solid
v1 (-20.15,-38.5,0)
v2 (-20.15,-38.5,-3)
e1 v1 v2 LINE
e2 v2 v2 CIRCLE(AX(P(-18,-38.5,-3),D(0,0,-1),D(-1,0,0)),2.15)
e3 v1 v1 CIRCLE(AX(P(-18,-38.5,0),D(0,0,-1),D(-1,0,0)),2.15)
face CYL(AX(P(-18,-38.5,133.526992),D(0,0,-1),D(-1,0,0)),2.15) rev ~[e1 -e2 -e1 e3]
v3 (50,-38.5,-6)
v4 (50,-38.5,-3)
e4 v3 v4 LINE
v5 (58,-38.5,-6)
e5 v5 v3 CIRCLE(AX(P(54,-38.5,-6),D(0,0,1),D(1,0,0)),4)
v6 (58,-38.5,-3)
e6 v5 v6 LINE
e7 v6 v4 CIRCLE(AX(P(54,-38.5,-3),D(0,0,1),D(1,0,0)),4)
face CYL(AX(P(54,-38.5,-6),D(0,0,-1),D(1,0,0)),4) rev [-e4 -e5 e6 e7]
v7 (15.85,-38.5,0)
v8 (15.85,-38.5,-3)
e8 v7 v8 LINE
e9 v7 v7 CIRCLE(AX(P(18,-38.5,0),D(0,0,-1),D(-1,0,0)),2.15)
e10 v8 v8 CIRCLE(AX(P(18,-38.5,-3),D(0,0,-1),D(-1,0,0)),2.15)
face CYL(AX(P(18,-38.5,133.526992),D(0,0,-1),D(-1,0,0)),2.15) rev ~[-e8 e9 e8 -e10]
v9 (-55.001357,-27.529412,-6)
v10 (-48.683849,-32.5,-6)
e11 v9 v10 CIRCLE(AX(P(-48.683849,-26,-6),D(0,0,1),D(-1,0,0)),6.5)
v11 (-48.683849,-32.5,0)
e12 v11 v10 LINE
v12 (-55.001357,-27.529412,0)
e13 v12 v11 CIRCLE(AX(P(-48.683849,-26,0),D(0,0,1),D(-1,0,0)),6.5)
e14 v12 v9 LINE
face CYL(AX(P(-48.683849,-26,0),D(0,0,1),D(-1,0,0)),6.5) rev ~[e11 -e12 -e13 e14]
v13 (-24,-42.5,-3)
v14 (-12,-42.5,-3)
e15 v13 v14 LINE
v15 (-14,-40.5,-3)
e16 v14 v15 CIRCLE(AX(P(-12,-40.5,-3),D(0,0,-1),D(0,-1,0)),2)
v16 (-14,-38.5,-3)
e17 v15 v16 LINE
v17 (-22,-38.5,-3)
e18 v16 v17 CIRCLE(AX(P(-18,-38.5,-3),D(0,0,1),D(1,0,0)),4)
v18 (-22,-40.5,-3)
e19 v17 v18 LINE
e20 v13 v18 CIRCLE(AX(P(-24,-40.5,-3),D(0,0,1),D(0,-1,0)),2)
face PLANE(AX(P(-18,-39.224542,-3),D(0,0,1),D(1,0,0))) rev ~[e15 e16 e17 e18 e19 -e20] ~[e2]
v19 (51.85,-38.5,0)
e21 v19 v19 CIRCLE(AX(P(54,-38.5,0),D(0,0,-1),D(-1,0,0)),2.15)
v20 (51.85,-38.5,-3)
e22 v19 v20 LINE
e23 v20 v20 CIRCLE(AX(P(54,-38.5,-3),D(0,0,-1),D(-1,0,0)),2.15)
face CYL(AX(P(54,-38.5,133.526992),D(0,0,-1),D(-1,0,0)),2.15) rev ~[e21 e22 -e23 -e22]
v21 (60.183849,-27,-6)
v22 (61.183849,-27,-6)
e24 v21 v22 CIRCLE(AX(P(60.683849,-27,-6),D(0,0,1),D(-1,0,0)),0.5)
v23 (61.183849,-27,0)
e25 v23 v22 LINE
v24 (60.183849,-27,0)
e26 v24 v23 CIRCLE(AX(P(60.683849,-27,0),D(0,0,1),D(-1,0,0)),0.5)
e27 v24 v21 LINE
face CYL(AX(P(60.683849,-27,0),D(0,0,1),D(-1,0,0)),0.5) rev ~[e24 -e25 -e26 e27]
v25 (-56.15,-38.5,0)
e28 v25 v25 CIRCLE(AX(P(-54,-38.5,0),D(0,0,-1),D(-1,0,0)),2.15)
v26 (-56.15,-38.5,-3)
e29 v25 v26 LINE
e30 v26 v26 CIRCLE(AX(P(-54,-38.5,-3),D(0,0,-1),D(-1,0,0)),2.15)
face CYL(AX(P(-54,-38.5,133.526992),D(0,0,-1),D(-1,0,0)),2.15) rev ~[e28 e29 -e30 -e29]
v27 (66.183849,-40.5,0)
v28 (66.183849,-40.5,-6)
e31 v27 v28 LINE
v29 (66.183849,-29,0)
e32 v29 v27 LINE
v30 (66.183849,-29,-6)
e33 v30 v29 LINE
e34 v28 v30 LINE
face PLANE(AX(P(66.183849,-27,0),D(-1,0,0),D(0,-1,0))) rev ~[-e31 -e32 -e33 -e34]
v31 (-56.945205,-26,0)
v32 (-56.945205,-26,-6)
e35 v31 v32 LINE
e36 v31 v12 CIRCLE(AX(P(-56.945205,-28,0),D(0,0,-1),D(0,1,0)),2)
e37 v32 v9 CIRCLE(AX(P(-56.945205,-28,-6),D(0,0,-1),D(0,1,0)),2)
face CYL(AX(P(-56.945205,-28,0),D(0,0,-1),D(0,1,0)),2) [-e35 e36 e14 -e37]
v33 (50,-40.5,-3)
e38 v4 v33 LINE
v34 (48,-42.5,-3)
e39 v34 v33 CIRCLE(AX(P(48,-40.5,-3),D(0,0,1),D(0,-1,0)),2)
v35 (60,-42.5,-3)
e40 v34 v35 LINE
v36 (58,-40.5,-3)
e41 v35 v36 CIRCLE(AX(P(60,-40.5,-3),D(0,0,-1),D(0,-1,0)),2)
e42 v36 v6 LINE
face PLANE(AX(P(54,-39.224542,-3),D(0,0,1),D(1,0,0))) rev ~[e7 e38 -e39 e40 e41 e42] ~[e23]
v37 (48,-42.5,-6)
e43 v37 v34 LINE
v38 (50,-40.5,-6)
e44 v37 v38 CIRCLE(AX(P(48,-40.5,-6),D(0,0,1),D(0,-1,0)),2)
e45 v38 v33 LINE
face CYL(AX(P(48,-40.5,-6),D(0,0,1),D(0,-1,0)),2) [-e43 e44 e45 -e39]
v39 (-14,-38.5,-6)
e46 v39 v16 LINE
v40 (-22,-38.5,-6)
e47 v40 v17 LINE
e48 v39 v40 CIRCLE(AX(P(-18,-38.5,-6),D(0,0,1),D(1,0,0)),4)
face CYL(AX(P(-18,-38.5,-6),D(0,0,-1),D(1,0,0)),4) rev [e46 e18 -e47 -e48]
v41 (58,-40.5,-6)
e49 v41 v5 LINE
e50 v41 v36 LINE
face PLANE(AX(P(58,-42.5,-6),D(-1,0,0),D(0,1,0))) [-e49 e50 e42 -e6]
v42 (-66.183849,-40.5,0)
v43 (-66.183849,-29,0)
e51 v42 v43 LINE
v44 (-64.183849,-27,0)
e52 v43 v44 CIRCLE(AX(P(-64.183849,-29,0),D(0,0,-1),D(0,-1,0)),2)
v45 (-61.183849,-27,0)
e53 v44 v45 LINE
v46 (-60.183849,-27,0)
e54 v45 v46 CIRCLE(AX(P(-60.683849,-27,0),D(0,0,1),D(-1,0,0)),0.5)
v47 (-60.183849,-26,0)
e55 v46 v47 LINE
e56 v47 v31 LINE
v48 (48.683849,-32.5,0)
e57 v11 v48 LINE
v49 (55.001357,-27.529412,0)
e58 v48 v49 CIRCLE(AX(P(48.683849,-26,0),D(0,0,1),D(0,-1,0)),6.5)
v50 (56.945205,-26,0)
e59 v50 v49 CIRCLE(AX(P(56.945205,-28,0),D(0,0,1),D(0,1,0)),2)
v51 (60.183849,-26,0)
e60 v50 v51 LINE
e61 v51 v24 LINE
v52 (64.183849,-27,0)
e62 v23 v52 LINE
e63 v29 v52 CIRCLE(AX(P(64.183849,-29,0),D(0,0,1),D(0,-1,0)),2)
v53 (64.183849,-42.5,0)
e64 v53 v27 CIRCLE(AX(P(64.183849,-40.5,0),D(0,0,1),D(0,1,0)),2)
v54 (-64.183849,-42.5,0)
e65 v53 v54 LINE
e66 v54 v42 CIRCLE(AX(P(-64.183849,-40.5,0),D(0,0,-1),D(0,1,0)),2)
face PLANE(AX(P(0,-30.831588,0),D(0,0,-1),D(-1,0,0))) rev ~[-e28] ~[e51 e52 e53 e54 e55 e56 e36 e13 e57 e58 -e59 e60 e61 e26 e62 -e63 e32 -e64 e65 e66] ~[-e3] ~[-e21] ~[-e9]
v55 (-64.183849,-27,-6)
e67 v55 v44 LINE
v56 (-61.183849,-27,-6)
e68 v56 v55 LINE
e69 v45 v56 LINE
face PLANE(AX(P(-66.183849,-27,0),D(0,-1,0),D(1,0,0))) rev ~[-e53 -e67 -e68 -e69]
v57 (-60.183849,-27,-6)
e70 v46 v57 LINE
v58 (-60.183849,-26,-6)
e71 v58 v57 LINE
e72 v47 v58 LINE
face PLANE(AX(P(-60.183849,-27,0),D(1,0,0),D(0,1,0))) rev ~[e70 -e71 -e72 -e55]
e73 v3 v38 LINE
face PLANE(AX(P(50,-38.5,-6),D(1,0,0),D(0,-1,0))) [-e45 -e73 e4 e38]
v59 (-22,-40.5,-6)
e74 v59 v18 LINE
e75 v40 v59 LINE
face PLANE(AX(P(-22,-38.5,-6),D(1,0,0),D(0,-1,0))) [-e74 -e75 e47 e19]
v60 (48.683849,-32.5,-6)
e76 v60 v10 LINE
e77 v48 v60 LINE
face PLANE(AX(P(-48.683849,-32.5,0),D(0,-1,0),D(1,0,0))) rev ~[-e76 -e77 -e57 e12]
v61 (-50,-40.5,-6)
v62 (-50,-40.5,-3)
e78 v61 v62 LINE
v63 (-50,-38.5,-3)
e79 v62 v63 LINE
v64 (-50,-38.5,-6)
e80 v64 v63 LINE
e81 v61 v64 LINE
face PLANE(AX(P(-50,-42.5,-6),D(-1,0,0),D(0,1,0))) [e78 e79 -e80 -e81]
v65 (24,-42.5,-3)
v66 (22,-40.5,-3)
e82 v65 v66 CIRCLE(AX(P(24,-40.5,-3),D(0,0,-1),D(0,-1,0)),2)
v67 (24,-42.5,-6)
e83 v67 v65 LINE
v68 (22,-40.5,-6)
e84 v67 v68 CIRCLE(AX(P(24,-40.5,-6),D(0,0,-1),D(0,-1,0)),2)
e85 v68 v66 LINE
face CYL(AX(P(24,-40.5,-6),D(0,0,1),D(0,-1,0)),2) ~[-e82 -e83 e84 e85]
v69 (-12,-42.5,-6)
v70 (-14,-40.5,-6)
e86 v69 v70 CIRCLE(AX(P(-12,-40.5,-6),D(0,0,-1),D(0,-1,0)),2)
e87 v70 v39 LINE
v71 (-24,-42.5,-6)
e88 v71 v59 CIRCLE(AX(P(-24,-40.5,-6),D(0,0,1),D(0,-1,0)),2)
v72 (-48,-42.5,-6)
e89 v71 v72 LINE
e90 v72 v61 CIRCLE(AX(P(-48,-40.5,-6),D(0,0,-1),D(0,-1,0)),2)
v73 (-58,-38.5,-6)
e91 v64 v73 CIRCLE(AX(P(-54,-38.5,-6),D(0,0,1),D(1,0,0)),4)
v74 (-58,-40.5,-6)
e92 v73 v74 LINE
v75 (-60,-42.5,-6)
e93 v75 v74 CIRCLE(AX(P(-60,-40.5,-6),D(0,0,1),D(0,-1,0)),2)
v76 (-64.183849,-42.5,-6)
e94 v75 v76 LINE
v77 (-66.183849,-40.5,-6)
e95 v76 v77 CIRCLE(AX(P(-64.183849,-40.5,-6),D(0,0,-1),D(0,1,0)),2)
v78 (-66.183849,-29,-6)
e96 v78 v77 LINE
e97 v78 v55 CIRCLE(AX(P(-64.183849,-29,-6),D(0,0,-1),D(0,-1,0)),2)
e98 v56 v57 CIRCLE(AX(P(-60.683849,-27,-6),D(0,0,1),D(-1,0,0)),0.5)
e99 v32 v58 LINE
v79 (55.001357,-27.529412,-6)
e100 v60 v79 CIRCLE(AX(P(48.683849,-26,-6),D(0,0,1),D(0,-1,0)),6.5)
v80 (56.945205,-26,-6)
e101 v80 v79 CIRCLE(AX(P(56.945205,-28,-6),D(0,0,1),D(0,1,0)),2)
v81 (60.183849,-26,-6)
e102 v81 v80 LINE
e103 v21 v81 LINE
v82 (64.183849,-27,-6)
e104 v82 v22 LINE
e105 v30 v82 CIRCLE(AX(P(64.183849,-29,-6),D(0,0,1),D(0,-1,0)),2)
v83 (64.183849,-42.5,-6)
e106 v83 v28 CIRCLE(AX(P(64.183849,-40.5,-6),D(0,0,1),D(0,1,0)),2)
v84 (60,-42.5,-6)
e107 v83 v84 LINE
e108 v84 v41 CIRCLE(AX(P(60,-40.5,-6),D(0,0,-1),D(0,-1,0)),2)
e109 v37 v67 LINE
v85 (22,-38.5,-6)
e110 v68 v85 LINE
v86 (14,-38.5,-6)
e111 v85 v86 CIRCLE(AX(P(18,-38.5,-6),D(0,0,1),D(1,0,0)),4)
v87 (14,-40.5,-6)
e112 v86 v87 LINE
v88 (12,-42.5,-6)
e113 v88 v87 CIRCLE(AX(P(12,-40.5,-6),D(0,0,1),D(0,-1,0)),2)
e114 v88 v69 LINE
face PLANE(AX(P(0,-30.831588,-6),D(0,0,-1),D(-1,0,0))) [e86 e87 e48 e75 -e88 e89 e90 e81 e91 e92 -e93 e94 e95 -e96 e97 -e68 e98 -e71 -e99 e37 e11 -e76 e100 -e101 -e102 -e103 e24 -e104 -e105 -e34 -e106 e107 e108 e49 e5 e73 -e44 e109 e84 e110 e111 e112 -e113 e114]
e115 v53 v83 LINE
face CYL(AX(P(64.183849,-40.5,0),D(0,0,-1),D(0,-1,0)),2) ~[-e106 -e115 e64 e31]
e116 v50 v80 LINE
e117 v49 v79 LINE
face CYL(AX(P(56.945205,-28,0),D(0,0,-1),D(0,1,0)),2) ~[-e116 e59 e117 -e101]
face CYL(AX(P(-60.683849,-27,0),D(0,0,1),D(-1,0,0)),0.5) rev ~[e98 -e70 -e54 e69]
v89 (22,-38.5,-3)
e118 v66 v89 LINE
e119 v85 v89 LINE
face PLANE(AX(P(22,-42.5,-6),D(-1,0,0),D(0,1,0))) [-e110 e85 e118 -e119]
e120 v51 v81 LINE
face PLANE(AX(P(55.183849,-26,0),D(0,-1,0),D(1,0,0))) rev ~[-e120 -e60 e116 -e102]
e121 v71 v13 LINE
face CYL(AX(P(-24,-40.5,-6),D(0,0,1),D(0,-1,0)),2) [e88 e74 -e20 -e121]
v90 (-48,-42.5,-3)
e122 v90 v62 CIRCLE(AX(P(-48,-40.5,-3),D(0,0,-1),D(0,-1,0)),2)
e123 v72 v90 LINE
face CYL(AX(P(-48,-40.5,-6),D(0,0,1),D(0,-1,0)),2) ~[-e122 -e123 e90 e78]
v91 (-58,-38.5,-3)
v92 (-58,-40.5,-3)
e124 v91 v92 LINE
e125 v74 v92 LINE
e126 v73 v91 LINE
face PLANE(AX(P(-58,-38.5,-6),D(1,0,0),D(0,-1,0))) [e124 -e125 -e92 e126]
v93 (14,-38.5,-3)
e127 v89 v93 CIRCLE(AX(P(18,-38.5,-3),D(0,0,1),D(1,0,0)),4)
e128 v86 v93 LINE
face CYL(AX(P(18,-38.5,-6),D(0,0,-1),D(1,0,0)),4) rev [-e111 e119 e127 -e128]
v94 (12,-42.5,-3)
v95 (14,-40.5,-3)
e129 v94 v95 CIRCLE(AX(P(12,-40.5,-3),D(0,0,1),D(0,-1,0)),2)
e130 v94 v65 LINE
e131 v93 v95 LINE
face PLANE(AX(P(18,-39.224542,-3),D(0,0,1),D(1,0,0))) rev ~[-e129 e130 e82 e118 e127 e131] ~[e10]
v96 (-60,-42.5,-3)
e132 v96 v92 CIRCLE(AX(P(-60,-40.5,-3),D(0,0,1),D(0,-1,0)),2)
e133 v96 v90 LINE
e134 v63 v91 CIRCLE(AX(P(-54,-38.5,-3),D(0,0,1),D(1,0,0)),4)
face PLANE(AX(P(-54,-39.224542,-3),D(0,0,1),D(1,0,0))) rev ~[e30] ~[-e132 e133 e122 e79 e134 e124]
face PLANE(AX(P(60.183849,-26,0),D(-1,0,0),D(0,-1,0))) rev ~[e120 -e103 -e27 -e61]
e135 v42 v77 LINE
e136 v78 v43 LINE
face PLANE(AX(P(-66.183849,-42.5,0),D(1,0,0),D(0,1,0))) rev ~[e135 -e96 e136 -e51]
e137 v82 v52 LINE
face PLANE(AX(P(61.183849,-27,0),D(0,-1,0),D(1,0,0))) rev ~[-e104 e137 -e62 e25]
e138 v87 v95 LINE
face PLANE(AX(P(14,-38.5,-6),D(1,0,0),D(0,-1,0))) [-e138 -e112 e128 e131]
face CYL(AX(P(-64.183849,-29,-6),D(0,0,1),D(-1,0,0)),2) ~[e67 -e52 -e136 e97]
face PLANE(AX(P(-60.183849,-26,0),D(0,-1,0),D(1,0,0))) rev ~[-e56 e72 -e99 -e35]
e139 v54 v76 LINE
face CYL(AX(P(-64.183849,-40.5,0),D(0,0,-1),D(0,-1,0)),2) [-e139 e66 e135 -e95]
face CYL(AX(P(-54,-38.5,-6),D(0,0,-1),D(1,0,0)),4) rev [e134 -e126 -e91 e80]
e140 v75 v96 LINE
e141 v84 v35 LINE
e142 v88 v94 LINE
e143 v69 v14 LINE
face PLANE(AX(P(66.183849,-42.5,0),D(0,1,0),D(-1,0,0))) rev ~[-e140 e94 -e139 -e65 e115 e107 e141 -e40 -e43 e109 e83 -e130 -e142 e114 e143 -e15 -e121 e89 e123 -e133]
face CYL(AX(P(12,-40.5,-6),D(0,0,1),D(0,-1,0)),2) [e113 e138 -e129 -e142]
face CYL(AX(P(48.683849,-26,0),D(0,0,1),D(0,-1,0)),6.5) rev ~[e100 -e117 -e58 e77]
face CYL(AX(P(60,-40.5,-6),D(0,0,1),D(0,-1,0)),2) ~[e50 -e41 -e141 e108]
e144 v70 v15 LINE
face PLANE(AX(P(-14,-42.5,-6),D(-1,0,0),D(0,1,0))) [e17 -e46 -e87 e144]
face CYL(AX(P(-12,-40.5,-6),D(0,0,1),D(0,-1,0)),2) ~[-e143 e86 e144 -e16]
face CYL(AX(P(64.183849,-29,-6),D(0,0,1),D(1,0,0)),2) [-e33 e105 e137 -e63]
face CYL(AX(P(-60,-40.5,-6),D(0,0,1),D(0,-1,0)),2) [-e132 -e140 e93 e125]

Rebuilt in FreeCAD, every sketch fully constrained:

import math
import FreeCAD as App
import Part
import Sketcher
from FreeCAD import Vector
Q = App.Units.Quantity


def edges_at(feature, points):
    """Names of the edges that pass closest to the given points."""
    edges = feature.Shape.Edges
    near = lambda p: min(range(len(edges)), key=lambda i: edges[i].distToShape(Part.Vertex(*p))[0])
    return sorted({f"Edge{near(p) + 1}" for p in points})


def add_polygon(sketch, points):
    """Adds a closed chain of lines whose ends are joined by coincident constraints."""
    first, n = sketch.GeometryCount, len(points)
    for a, b in zip(points, points[1:] + points[:1]):
        sketch.addGeometry(Part.LineSegment(App.Vector(*a, 0), App.Vector(*b, 0)), False)
    for i in range(n):
        sketch.addConstraint(Sketcher.Constraint("Coincident", first + i, 2, first + (i + 1) % n, 1))

doc = App.newDocument("Part")
params = doc.addObject("Spreadsheet::Sheet", "Params")
for row, (alias, value) in enumerate([
    ("sketch1_radius", "26 mm"),
    ("sketch1_radius2", "19.5 mm"),
    ("sketch1_width", "17 mm"),
    ("sketch1_height", "8 mm"),
    ("pad1_length", "6 mm"),
    ("sketch2_radius", "1 mm"),
    ("sketch2_width", "6 mm"),
    ("sketch2_width2", "44 mm"),
    ("sketch2_height", "19 mm"),
    ("sketch2_height2", "1 mm"),
    ("pocket1_length", "1 mm"),
    ("sketch3_radius", "4 mm"),
    ("sketch3_height", "4 mm"),
    ("pocket2_length", "3 mm"),
    ("sketch4_radius", "0.5 mm"),
    ("sketch4_radius2", "6.5 mm"),
    ("sketch4_width", "5 mm"),
    ("sketch4_height", "1 mm"),
    ("sketch4_height2", "15.5 mm"),
    ("sketch5_diameter", "4.3 mm"),
    ("hole_diameter", "4.3 mm"),
    ("fillet_radius", "2 mm"),
], start=1):
    params.set(f"A{row}", alias)
    params.set(f"B{row}", "=" + value)
    params.setAlias(f"B{row}", alias)

body = doc.addObject("PartDesign::Body", "Body")

# Sketch on XY plane
sketch1 = doc.addObject("Sketcher::SketchObject", "Sketch")
body.addObject(sketch1)
sketch1.AttachmentSupport = (doc.XY_Plane, [""])
sketch1.MapMode = "FlatFace"
sketch1.addGeometry([
    Part.LineSegment(Vector(-65.183849, -8, 0), Vector(-74.445216, -8, 0)),  # 0
    Part.ArcOfCircle(Part.Circle(Vector(-99.183849, 0, 0), Vector(0, 0, 1), 26), math.radians(-90), math.radians(-17.920213)),  # 1
    Part.LineSegment(Vector(-99.183849, -26, 0), Vector(-116.183849, -26, 0)),  # 2
    Part.LineSegment(Vector(-116.183849, -26, 0), Vector(-116.183849, -34, 0)),  # 3
    Part.LineSegment(Vector(-116.183849, -34, 0), Vector(-66.183849, -42.5, 0)),  # 4
    Part.LineSegment(Vector(-66.183849, -42.5, 0), Vector(66.183849, -42.5, 0)),  # 5
    Part.LineSegment(Vector(66.183849, -42.5, 0), Vector(116.183849, -34, 0)),  # 6
    Part.LineSegment(Vector(116.183849, -34, 0), Vector(116.183849, -26, 0)),  # 7
    Part.LineSegment(Vector(116.183849, -26, 0), Vector(99.183849, -26, 0)),  # 8
    Part.ArcOfCircle(Part.Circle(Vector(99.183849, 0, 0), Vector(0, 0, 1), 26), math.radians(-162.079787), math.radians(-90)),  # 9
    Part.LineSegment(Vector(74.445216, -8, 0), Vector(65.183849, -8, 0)),  # 10
    Part.ArcOfCircle(Part.Circle(Vector(45.683849, -8, 0), Vector(0, 0, 1), 19.5), math.radians(-90), math.radians(0)),  # 11
    Part.LineSegment(Vector(45.683849, -27.5, 0), Vector(-45.683849, -27.5, 0)),  # 12
    Part.ArcOfCircle(Part.Circle(Vector(-45.683849, -8, 0), Vector(0, 0, 1), 19.5), math.radians(180), math.radians(270)),  # 13
], False)
sketch1.addConstraint([
    Sketcher.Constraint("Coincident", 0, 2, 1, 2),
    Sketcher.Constraint("Tangent", 1, 1, 2, 1),
    Sketcher.Constraint("Coincident", 2, 2, 3, 1),
    Sketcher.Constraint("Coincident", 3, 2, 4, 1),
    Sketcher.Constraint("Coincident", 4, 2, 5, 1),
    Sketcher.Constraint("Coincident", 5, 2, 6, 1),
    Sketcher.Constraint("Coincident", 6, 2, 7, 1),
    Sketcher.Constraint("Coincident", 7, 2, 8, 1),
    Sketcher.Constraint("Tangent", 8, 2, 9, 2),
    Sketcher.Constraint("Coincident", 9, 1, 10, 1),
    Sketcher.Constraint("Coincident", 10, 2, 11, 2),
    Sketcher.Constraint("Tangent", 11, 1, 12, 1),
    Sketcher.Constraint("Tangent", 12, 2, 13, 2),
    Sketcher.Constraint("Coincident", 13, 1, 0, 1),
    Sketcher.Constraint("Horizontal", 0),
    Sketcher.Constraint("Horizontal", 2),
    Sketcher.Constraint("Vertical", 3),
    Sketcher.Constraint("Horizontal", 5),
    Sketcher.Constraint("Vertical", 7),
    Sketcher.Constraint("Horizontal", 8),
    Sketcher.Constraint("Horizontal", 10),
    Sketcher.Constraint("Horizontal", 12),
    Sketcher.Constraint("Equal", 1, 9),
    Sketcher.Constraint("Equal", 11, 13),
    Sketcher.Constraint("Symmetric", 1, 3, 9, 3, -1, 1),
    Sketcher.Constraint("Symmetric", 3, 2, 6, 2, -2),
    Sketcher.Constraint("Symmetric", 0, 2, 9, 1, -2),
    Sketcher.Constraint("Horizontal", 13, 3, 0, 2),
    Sketcher.Constraint("Equal", 0, 10),
    Sketcher.Constraint("Equal", 4, 6),
    Sketcher.Constraint("Radius", 1, Q("26 mm")),
    Sketcher.Constraint("Radius", 11, Q("19.5 mm")),
    Sketcher.Constraint("DistanceX", 2, 2, 2, 1, Q("17 mm")),
    Sketcher.Constraint("DistanceY", 3, 2, 3, 1, Q("8 mm")),
    Sketcher.Constraint("DistanceY", 11, 3, -1, 1, Q("8 mm")),
    Sketcher.Constraint("DistanceX", 1, 1, 4, 2, Q("33 mm")),
    Sketcher.Constraint("DistanceX", 10, 2, 5, 2, Q("1 mm")),
    Sketcher.Constraint("DistanceY", 5, 2, 11, 1, Q("15 mm")),
    Sketcher.Constraint("DistanceX", 5, 1, 5, 2, Q("132.367699 mm")),
])
sketch1.setExpression("Constraints[30]", "Params.sketch1_radius")
sketch1.setExpression("Constraints[31]", "Params.sketch1_radius2")
sketch1.setExpression("Constraints[32]", "Params.sketch1_width")
sketch1.setExpression("Constraints[33]", "Params.sketch1_height")
pad1 = doc.addObject("PartDesign::Pad", "Pad")
body.addObject(pad1)
pad1.Profile = sketch1
pad1.setExpression("Length", "Params.pad1_length")
pad1.Reversed = True

# Sketch on XY plane
sketch2 = doc.addObject("Sketcher::SketchObject", "Sketch001")
body.addObject(sketch2)
sketch2.AttachmentSupport = (doc.XY_Plane, [""])
sketch2.MapMode = "FlatFace"
sketch2.AttachmentOffset = App.Placement(Vector(0, 0, -6), App.Rotation())
sketch2.addGeometry([
    Part.LineSegment(Vector(-66.183849, -8, 0), Vector(-72.183849, -8, 0)),  # 0
    Part.LineSegment(Vector(-72.183849, -8, 0), Vector(-72.183849, -27, 0)),  # 1
    Part.LineSegment(Vector(-72.183849, -27, 0), Vector(-116.183849, -27, 0)),  # 2
    Part.LineSegment(Vector(-116.183849, -27, 0), Vector(-116.183849, -33, 0)),  # 3
    Part.LineSegment(Vector(-116.183849, -33, 0), Vector(-72.183849, -33, 0)),  # 4
    Part.LineSegment(Vector(-72.183849, -33, 0), Vector(-72.183849, -34, 0)),  # 5
    Part.ArcOfCircle(Part.Circle(Vector(-71.183849, -34, 0), Vector(0, 0, 1), 1), math.radians(180), math.radians(360)),  # 6
    Part.LineSegment(Vector(-70.183849, -34, 0), Vector(-68.183849, -34, 0)),  # 7
    Part.ArcOfCircle(Part.Circle(Vector(-67.183849, -34, 0), Vector(0, 0, 1), 1), math.radians(180), math.radians(360)),  # 8
    Part.LineSegment(Vector(-66.183849, -34, 0), Vector(-66.183849, -8, 0)),  # 9
    Part.LineSegment(Vector(72.183849, -8, 0), Vector(66.183849, -8, 0)),  # 10
    Part.LineSegment(Vector(66.183849, -8, 0), Vector(66.183849, -34, 0)),  # 11
    Part.ArcOfCircle(Part.Circle(Vector(67.183849, -34, 0), Vector(0, 0, 1), 1), math.radians(180), math.radians(360)),  # 12
    Part.LineSegment(Vector(68.183849, -34, 0), Vector(70.183849, -34, 0)),  # 13
    Part.ArcOfCircle(Part.Circle(Vector(71.183849, -34, 0), Vector(0, 0, 1), 1), math.radians(180), math.radians(360)),  # 14
    Part.LineSegment(Vector(72.183849, -34, 0), Vector(72.183849, -33, 0)),  # 15
    Part.LineSegment(Vector(72.183849, -33, 0), Vector(116.183849, -33, 0)),  # 16
    Part.LineSegment(Vector(116.183849, -33, 0), Vector(116.183849, -27, 0)),  # 17
    Part.LineSegment(Vector(116.183849, -27, 0), Vector(72.183849, -27, 0)),  # 18
    Part.LineSegment(Vector(72.183849, -27, 0), Vector(72.183849, -8, 0)),  # 19
], False)
sketch2.addConstraint([
    Sketcher.Constraint("Coincident", 0, 2, 1, 1),
    Sketcher.Constraint("Coincident", 1, 2, 2, 1),
    Sketcher.Constraint("Coincident", 2, 2, 3, 1),
    Sketcher.Constraint("Coincident", 3, 2, 4, 1),
    Sketcher.Constraint("Coincident", 4, 2, 5, 1),
    Sketcher.Constraint("Tangent", 5, 2, 6, 1),
    Sketcher.Constraint("Coincident", 6, 2, 7, 1),
    Sketcher.Constraint("Coincident", 7, 2, 8, 1),
    Sketcher.Constraint("Tangent", 8, 2, 9, 1),
    Sketcher.Constraint("Coincident", 9, 2, 0, 1),
    Sketcher.Constraint("Coincident", 10, 2, 11, 1),
    Sketcher.Constraint("Tangent", 11, 2, 12, 1),
    Sketcher.Constraint("Coincident", 12, 2, 13, 1),
    Sketcher.Constraint("Coincident", 13, 2, 14, 1),
    Sketcher.Constraint("Tangent", 14, 2, 15, 1),
    Sketcher.Constraint("Coincident", 15, 2, 16, 1),
    Sketcher.Constraint("Coincident", 16, 2, 17, 1),
    Sketcher.Constraint("Coincident", 17, 2, 18, 1),
    Sketcher.Constraint("Coincident", 18, 2, 19, 1),
    Sketcher.Constraint("Coincident", 19, 2, 10, 1),
    Sketcher.Constraint("Horizontal", 0),
    Sketcher.Constraint("Vertical", 1),
    Sketcher.Constraint("Horizontal", 2),
    Sketcher.Constraint("Vertical", 3),
    Sketcher.Constraint("Horizontal", 4),
    Sketcher.Constraint("Vertical", 5),
    Sketcher.Constraint("Horizontal", 7),
    Sketcher.Constraint("Vertical", 9),
    Sketcher.Constraint("Horizontal", 10),
    Sketcher.Constraint("Vertical", 11),
    Sketcher.Constraint("Horizontal", 13),
    Sketcher.Constraint("Vertical", 15),
    Sketcher.Constraint("Horizontal", 16),
    Sketcher.Constraint("Vertical", 17),
    Sketcher.Constraint("Horizontal", 18),
    Sketcher.Constraint("Vertical", 19),
    Sketcher.Constraint("Equal", 6, 8),
    Sketcher.Constraint("Equal", 8, 12),
    Sketcher.Constraint("Equal", 12, 14),
    Sketcher.Constraint("Symmetric", 8, 3, 12, 3, -2),
    Sketcher.Constraint("Symmetric", 6, 3, 14, 3, -2),
    Sketcher.Constraint("Symmetric", 3, 2, 16, 2, -2),
    Sketcher.Constraint("Symmetric", 1, 2, 18, 2, -2),
    Sketcher.Constraint("Horizontal", 6, 3, 8, 3),
    Sketcher.Constraint("Horizontal", 5, 2, 6, 2),
    Sketcher.Constraint("Horizontal", 9, 2, 10, 2),
    Sketcher.Constraint("Horizontal", 11, 2, 12, 2),
    Sketcher.Constraint("Vertical", 1, 2, 4, 2),
    Sketcher.Constraint("Equal", 10, 3),
    Sketcher.Constraint("Radius", 6, Q("1 mm")),
    Sketcher.Constraint("DistanceX", 0, 2, 0, 1, Q("6 mm")),
    Sketcher.Constraint("DistanceX", 2, 2, 2, 1, Q("44 mm")),
    Sketcher.Constraint("DistanceY", 1, 2, 1, 1, Q("19 mm")),
    Sketcher.Constraint("DistanceY", 5, 2, 5, 1, Q("1 mm")),
    Sketcher.Constraint("DistanceY", 6, 3, -1, 1, Q("34 mm")),
    Sketcher.Constraint("DistanceX", 8, 3, 12, 3, Q("134.367699 mm")),
])
sketch2.setExpression("Constraints[49]", "Params.sketch2_radius")
sketch2.setExpression("Constraints[50]", "Params.sketch2_width")
sketch2.setExpression("Constraints[51]", "Params.sketch2_width2")
sketch2.setExpression("Constraints[52]", "Params.sketch2_height")
sketch2.setExpression("Constraints[53]", "Params.sketch2_height2")
pocket1 = doc.addObject("PartDesign::Pocket", "Pocket")
body.addObject(pocket1)
pocket1.Profile = sketch2
pocket1.setExpression("Length", "Params.pocket1_length")
pocket1.Reversed = True

# Sketch on XY plane
sketch3 = doc.addObject("Sketcher::SketchObject", "Sketch002")
body.addObject(sketch3)
sketch3.AttachmentSupport = (doc.XY_Plane, [""])
sketch3.MapMode = "FlatFace"
sketch3.AttachmentOffset = App.Placement(Vector(0, 0, -6), App.Rotation())
sketch3.addGeometry([
    Part.LineSegment(Vector(-58, -38.5, 0), Vector(-58, -42.5, 0)),  # 0
    Part.LineSegment(Vector(-58, -42.5, 0), Vector(-50, -42.5, 0)),  # 1
    Part.LineSegment(Vector(-50, -42.5, 0), Vector(-50, -38.5, 0)),  # 2
    Part.ArcOfCircle(Part.Circle(Vector(-54, -38.5, 0), Vector(0, 0, 1), 4), math.radians(0), math.radians(180)),  # 3
    Part.LineSegment(Vector(-22, -38.5, 0), Vector(-22, -42.5, 0)),  # 4
    Part.LineSegment(Vector(-22, -42.5, 0), Vector(-14, -42.5, 0)),  # 5
    Part.LineSegment(Vector(-14, -42.5, 0), Vector(-14, -38.5, 0)),  # 6
    Part.ArcOfCircle(Part.Circle(Vector(-18, -38.5, 0), Vector(0, 0, 1), 4), math.radians(0), math.radians(180)),  # 7
    Part.LineSegment(Vector(14, -38.5, 0), Vector(14, -42.5, 0)),  # 8
    Part.LineSegment(Vector(14, -42.5, 0), Vector(22, -42.5, 0)),  # 9
    Part.LineSegment(Vector(22, -42.5, 0), Vector(22, -38.5, 0)),  # 10
    Part.ArcOfCircle(Part.Circle(Vector(18, -38.5, 0), Vector(0, 0, 1), 4), math.radians(0), math.radians(180)),  # 11
    Part.LineSegment(Vector(50, -38.5, 0), Vector(50, -42.5, 0)),  # 12
    Part.LineSegment(Vector(50, -42.5, 0), Vector(58, -42.5, 0)),  # 13
    Part.LineSegment(Vector(58, -42.5, 0), Vector(58, -38.5, 0)),  # 14
    Part.ArcOfCircle(Part.Circle(Vector(54, -38.5, 0), Vector(0, 0, 1), 4), math.radians(0), math.radians(180)),  # 15
], False)
sketch3.addConstraint([
    Sketcher.Constraint("Coincident", 0, 2, 1, 1),
    Sketcher.Constraint("Coincident", 1, 2, 2, 1),
    Sketcher.Constraint("Tangent", 2, 2, 3, 1),
    Sketcher.Constraint("Tangent", 3, 2, 0, 1),
    Sketcher.Constraint("Coincident", 4, 2, 5, 1),
    Sketcher.Constraint("Coincident", 5, 2, 6, 1),
    Sketcher.Constraint("Tangent", 6, 2, 7, 1),
    Sketcher.Constraint("Tangent", 7, 2, 4, 1),
    Sketcher.Constraint("Coincident", 8, 2, 9, 1),
    Sketcher.Constraint("Coincident", 9, 2, 10, 1),
    Sketcher.Constraint("Tangent", 10, 2, 11, 1),
    Sketcher.Constraint("Tangent", 11, 2, 8, 1),
    Sketcher.Constraint("Coincident", 12, 2, 13, 1),
    Sketcher.Constraint("Coincident", 13, 2, 14, 1),
    Sketcher.Constraint("Tangent", 14, 2, 15, 1),
    Sketcher.Constraint("Tangent", 15, 2, 12, 1),
    Sketcher.Constraint("Vertical", 0),
    Sketcher.Constraint("Horizontal", 1),
    Sketcher.Constraint("Vertical", 2),
    Sketcher.Constraint("Vertical", 4),
    Sketcher.Constraint("Horizontal", 5),
    Sketcher.Constraint("Vertical", 6),
    Sketcher.Constraint("Vertical", 8),
    Sketcher.Constraint("Horizontal", 9),
    Sketcher.Constraint("Vertical", 10),
    Sketcher.Constraint("Vertical", 12),
    Sketcher.Constraint("Horizontal", 13),
    Sketcher.Constraint("Vertical", 14),
    Sketcher.Constraint("Equal", 3, 7),
    Sketcher.Constraint("Equal", 7, 11),
    Sketcher.Constraint("Equal", 11, 15),
    Sketcher.Constraint("Symmetric", 7, 3, 11, 3, -2),
    Sketcher.Constraint("Symmetric", 3, 3, 15, 3, -2),
    Sketcher.Constraint("Horizontal", 3, 3, 7, 3),
    Sketcher.Constraint("Horizontal", 1, 2, 4, 2),
    Sketcher.Constraint("Horizontal", 5, 2, 8, 2),
    Sketcher.Constraint("Horizontal", 9, 2, 12, 2),
    Sketcher.Constraint("Radius", 3, Q("4 mm")),
    Sketcher.Constraint("DistanceY", 0, 2, 0, 1, Q("4 mm")),
    Sketcher.Constraint("DistanceX", 3, 3, -1, 1, Q("54 mm")),
    Sketcher.Constraint("DistanceX", 7, 3, -1, 1, Q("18 mm")),
    Sketcher.Constraint("DistanceY", 3, 3, -1, 1, Q("38.5 mm")),
])
sketch3.setExpression("Constraints[37]", "Params.sketch3_radius")
sketch3.setExpression("Constraints[38]", "Params.sketch3_height")
pocket2 = doc.addObject("PartDesign::Pocket", "Pocket001")
body.addObject(pocket2)
pocket2.Profile = sketch3
pocket2.setExpression("Length", "Params.pocket2_length")
pocket2.Reversed = True

# Sketch on XY plane
sketch4 = doc.addObject("Sketcher::SketchObject", "Sketch003")
body.addObject(sketch4)
sketch4.AttachmentSupport = (doc.XY_Plane, [""])
sketch4.MapMode = "FlatFace"
add_polygon(sketch4, [(-140.683, 16.499), (-140.683, -66.999), (140.683, -66.999), (140.683, 16.499)])  # lines 0-3
sketch4.addGeometry(Part.LineSegment(Vector(-66.183849, -42.5, 0), Vector(-66.183849, -27, 0)), False)  # 4
sketch4.addGeometry(Part.LineSegment(Vector(-66.183849, -27, 0), Vector(-61.183849, -27, 0)), False)  # 5
sketch4.addGeometry(Part.ArcOfCircle(Part.Circle(Vector(-60.683849, -27, 0), Vector(0, 0, 1), 0.5), math.radians(180), math.radians(360)), False)  # 6
sketch4.addGeometry(Part.LineSegment(Vector(-60.183849, -27, 0), Vector(-60.183849, -26, 0)), False)  # 7
sketch4.addGeometry(Part.LineSegment(Vector(-60.183849, -26, 0), Vector(-55.183849, -26, 0)), False)  # 8
sketch4.addGeometry(Part.ArcOfCircle(Part.Circle(Vector(-48.683849, -26, 0), Vector(0, 0, 1), 6.5), math.radians(180), math.radians(270)), False)  # 9
sketch4.addGeometry(Part.LineSegment(Vector(-48.683849, -32.5, 0), Vector(48.683849, -32.5, 0)), False)  # 10
sketch4.addGeometry(Part.ArcOfCircle(Part.Circle(Vector(48.683849, -26, 0), Vector(0, 0, 1), 6.5), math.radians(-90), math.radians(0)), False)  # 11
sketch4.addGeometry(Part.LineSegment(Vector(55.183849, -26, 0), Vector(60.183849, -26, 0)), False)  # 12
sketch4.addGeometry(Part.LineSegment(Vector(60.183849, -26, 0), Vector(60.183849, -27, 0)), False)  # 13
sketch4.addGeometry(Part.ArcOfCircle(Part.Circle(Vector(60.683849, -27, 0), Vector(0, 0, 1), 0.5), math.radians(180), math.radians(360)), False)  # 14
sketch4.addGeometry(Part.LineSegment(Vector(61.183849, -27, 0), Vector(66.183849, -27, 0)), False)  # 15
sketch4.addGeometry(Part.LineSegment(Vector(66.183849, -27, 0), Vector(66.183849, -42.5, 0)), False)  # 16
sketch4.addGeometry(Part.LineSegment(Vector(66.183849, -42.5, 0), Vector(-66.183849, -42.5, 0)), False)  # 17
sketch4.addConstraint([
    Sketcher.Constraint("Coincident", 4, 2, 5, 1),
    Sketcher.Constraint("Coincident", 5, 2, 6, 1),
    Sketcher.Constraint("Tangent", 6, 2, 7, 1),
    Sketcher.Constraint("Coincident", 7, 2, 8, 1),
    Sketcher.Constraint("Coincident", 8, 2, 9, 1),
    Sketcher.Constraint("Tangent", 9, 2, 10, 1),
    Sketcher.Constraint("Tangent", 10, 2, 11, 1),
    Sketcher.Constraint("Coincident", 11, 2, 12, 1),
    Sketcher.Constraint("Coincident", 12, 2, 13, 1),
    Sketcher.Constraint("Tangent", 13, 2, 14, 1),
    Sketcher.Constraint("Coincident", 14, 2, 15, 1),
    Sketcher.Constraint("Coincident", 15, 2, 16, 1),
    Sketcher.Constraint("Coincident", 16, 2, 17, 1),
    Sketcher.Constraint("Coincident", 17, 2, 4, 1),
    Sketcher.Constraint("Vertical", 0),
    Sketcher.Constraint("Horizontal", 1),
    Sketcher.Constraint("Vertical", 2),
    Sketcher.Constraint("Horizontal", 3),
    Sketcher.Constraint("Vertical", 4),
    Sketcher.Constraint("Horizontal", 5),
    Sketcher.Constraint("Vertical", 7),
    Sketcher.Constraint("Horizontal", 8),
    Sketcher.Constraint("Horizontal", 10),
    Sketcher.Constraint("Horizontal", 12),
    Sketcher.Constraint("Vertical", 13),
    Sketcher.Constraint("Horizontal", 15),
    Sketcher.Constraint("Vertical", 16),
    Sketcher.Constraint("Horizontal", 17),
    Sketcher.Constraint("Equal", 9, 11),
    Sketcher.Constraint("Equal", 6, 14),
    Sketcher.Constraint("Symmetric", 6, 3, 14, 3, -2),
    Sketcher.Constraint("Symmetric", 8, 2, 11, 2, -2),
    Sketcher.Constraint("Symmetric", 4, 2, 15, 2, -2),
    Sketcher.Constraint("Horizontal", 14, 3, 4, 2),
    Sketcher.Constraint("Horizontal", 11, 3, 7, 2),
    Sketcher.Constraint("Equal", 5, 8),
    Sketcher.Constraint("Radius", 6, Q("0.5 mm")),
    Sketcher.Constraint("Radius", 9, Q("6.5 mm")),
    Sketcher.Constraint("DistanceX", 5, 1, 5, 2, Q("5 mm")),
    Sketcher.Constraint("DistanceY", 7, 1, 7, 2, Q("1 mm")),
    Sketcher.Constraint("DistanceY", 4, 1, 4, 2, Q("15.5 mm")),
    Sketcher.Constraint("DistanceY", 6, 3, -1, 1, Q("27 mm")),
    Sketcher.Constraint("DistanceX", 1, 1, 1, 2, Q("281.366 mm")),
    Sketcher.Constraint("DistanceY", 0, 2, 0, 1, Q("83.498 mm")),
    Sketcher.Constraint("DistanceX", 10, 1, 10, 2, Q("97.367699 mm")),
    Sketcher.Constraint("DistanceX", 0, 2, -1, 1, Q("140.683 mm")),
    Sketcher.Constraint("DistanceY", 0, 2, -1, 1, Q("66.999 mm")),
])
sketch4.setExpression("Constraints[40]", "Params.sketch4_radius")
sketch4.setExpression("Constraints[41]", "Params.sketch4_radius2")
sketch4.setExpression("Constraints[42]", "Params.sketch4_width")
sketch4.setExpression("Constraints[43]", "Params.sketch4_height")
sketch4.setExpression("Constraints[44]", "Params.sketch4_height2")
pocket3 = doc.addObject("PartDesign::Pocket", "Pocket002")
body.addObject(pocket3)
pocket3.Profile = sketch4
pocket3.Type = "ThroughAll"

# Sketch on XY plane
sketch5 = doc.addObject("Sketcher::SketchObject", "Sketch004")
body.addObject(sketch5)
sketch5.AttachmentSupport = (doc.XY_Plane, [""])
sketch5.MapMode = "FlatFace"
sketch5.addGeometry([
    Part.Circle(Vector(-54, -38.5, 0), Vector(0, 0, 1), 2.15),
    Part.Circle(Vector(-18, -38.5, 0), Vector(0, 0, 1), 2.15),
    Part.Circle(Vector(18, -38.5, 0), Vector(0, 0, 1), 2.15),
    Part.Circle(Vector(54, -38.5, 0), Vector(0, 0, 1), 2.15),
], False)
sketch5.addConstraint([
    Sketcher.Constraint("Equal", 0, 1),
    Sketcher.Constraint("Equal", 1, 2),
    Sketcher.Constraint("Equal", 2, 3),
    Sketcher.Constraint("Symmetric", 1, 3, 2, 3, -2),
    Sketcher.Constraint("Symmetric", 0, 3, 3, 3, -2),
    Sketcher.Constraint("Horizontal", 0, 3, 1, 3),
    Sketcher.Constraint("Diameter", 0, Q("4.3 mm")),
    Sketcher.Constraint("DistanceX", 0, 3, -1, 1, Q("54 mm")),
    Sketcher.Constraint("DistanceX", 1, 3, -1, 1, Q("18 mm")),
    Sketcher.Constraint("DistanceY", 0, 3, -1, 1, Q("38.5 mm")),
])
sketch5.setExpression("Constraints[6]", "Params.sketch5_diameter")
doc.recompute()
hole = doc.addObject("PartDesign::Hole", "Hole")
body.addObject(hole)
hole.Profile = sketch5
hole.ThreadType = "None"
hole.setExpression("Diameter", "Params.hole_diameter")
hole.DepthType = "ThroughAll"
doc.recompute()

fillet = doc.addObject("PartDesign::Fillet", "Fillet")
body.addObject(fillet)
fillet.Base = (hole, edges_at(hole, [
    (-58, -42.5, -4.5),
    (-50, -42.5, -4.5),
    (-22, -42.5, -4.5),
    (-14, -42.5, -4.5),
    (14, -42.5, -4.5),
    (22, -42.5, -4.5),
    (50, -42.5, -4.5),
    (58, -42.5, -4.5),
    (-66.184, -27, -3),
    (-55.184, -26, -3),
    (55.184, -26, -3),
    (66.184, -27, -3),
    (-66.184, -42.5, -3),
    (66.184, -42.5, -3),
]))
fillet.setExpression("Radius", "Params.fillet_radius")

doc.recompute()
